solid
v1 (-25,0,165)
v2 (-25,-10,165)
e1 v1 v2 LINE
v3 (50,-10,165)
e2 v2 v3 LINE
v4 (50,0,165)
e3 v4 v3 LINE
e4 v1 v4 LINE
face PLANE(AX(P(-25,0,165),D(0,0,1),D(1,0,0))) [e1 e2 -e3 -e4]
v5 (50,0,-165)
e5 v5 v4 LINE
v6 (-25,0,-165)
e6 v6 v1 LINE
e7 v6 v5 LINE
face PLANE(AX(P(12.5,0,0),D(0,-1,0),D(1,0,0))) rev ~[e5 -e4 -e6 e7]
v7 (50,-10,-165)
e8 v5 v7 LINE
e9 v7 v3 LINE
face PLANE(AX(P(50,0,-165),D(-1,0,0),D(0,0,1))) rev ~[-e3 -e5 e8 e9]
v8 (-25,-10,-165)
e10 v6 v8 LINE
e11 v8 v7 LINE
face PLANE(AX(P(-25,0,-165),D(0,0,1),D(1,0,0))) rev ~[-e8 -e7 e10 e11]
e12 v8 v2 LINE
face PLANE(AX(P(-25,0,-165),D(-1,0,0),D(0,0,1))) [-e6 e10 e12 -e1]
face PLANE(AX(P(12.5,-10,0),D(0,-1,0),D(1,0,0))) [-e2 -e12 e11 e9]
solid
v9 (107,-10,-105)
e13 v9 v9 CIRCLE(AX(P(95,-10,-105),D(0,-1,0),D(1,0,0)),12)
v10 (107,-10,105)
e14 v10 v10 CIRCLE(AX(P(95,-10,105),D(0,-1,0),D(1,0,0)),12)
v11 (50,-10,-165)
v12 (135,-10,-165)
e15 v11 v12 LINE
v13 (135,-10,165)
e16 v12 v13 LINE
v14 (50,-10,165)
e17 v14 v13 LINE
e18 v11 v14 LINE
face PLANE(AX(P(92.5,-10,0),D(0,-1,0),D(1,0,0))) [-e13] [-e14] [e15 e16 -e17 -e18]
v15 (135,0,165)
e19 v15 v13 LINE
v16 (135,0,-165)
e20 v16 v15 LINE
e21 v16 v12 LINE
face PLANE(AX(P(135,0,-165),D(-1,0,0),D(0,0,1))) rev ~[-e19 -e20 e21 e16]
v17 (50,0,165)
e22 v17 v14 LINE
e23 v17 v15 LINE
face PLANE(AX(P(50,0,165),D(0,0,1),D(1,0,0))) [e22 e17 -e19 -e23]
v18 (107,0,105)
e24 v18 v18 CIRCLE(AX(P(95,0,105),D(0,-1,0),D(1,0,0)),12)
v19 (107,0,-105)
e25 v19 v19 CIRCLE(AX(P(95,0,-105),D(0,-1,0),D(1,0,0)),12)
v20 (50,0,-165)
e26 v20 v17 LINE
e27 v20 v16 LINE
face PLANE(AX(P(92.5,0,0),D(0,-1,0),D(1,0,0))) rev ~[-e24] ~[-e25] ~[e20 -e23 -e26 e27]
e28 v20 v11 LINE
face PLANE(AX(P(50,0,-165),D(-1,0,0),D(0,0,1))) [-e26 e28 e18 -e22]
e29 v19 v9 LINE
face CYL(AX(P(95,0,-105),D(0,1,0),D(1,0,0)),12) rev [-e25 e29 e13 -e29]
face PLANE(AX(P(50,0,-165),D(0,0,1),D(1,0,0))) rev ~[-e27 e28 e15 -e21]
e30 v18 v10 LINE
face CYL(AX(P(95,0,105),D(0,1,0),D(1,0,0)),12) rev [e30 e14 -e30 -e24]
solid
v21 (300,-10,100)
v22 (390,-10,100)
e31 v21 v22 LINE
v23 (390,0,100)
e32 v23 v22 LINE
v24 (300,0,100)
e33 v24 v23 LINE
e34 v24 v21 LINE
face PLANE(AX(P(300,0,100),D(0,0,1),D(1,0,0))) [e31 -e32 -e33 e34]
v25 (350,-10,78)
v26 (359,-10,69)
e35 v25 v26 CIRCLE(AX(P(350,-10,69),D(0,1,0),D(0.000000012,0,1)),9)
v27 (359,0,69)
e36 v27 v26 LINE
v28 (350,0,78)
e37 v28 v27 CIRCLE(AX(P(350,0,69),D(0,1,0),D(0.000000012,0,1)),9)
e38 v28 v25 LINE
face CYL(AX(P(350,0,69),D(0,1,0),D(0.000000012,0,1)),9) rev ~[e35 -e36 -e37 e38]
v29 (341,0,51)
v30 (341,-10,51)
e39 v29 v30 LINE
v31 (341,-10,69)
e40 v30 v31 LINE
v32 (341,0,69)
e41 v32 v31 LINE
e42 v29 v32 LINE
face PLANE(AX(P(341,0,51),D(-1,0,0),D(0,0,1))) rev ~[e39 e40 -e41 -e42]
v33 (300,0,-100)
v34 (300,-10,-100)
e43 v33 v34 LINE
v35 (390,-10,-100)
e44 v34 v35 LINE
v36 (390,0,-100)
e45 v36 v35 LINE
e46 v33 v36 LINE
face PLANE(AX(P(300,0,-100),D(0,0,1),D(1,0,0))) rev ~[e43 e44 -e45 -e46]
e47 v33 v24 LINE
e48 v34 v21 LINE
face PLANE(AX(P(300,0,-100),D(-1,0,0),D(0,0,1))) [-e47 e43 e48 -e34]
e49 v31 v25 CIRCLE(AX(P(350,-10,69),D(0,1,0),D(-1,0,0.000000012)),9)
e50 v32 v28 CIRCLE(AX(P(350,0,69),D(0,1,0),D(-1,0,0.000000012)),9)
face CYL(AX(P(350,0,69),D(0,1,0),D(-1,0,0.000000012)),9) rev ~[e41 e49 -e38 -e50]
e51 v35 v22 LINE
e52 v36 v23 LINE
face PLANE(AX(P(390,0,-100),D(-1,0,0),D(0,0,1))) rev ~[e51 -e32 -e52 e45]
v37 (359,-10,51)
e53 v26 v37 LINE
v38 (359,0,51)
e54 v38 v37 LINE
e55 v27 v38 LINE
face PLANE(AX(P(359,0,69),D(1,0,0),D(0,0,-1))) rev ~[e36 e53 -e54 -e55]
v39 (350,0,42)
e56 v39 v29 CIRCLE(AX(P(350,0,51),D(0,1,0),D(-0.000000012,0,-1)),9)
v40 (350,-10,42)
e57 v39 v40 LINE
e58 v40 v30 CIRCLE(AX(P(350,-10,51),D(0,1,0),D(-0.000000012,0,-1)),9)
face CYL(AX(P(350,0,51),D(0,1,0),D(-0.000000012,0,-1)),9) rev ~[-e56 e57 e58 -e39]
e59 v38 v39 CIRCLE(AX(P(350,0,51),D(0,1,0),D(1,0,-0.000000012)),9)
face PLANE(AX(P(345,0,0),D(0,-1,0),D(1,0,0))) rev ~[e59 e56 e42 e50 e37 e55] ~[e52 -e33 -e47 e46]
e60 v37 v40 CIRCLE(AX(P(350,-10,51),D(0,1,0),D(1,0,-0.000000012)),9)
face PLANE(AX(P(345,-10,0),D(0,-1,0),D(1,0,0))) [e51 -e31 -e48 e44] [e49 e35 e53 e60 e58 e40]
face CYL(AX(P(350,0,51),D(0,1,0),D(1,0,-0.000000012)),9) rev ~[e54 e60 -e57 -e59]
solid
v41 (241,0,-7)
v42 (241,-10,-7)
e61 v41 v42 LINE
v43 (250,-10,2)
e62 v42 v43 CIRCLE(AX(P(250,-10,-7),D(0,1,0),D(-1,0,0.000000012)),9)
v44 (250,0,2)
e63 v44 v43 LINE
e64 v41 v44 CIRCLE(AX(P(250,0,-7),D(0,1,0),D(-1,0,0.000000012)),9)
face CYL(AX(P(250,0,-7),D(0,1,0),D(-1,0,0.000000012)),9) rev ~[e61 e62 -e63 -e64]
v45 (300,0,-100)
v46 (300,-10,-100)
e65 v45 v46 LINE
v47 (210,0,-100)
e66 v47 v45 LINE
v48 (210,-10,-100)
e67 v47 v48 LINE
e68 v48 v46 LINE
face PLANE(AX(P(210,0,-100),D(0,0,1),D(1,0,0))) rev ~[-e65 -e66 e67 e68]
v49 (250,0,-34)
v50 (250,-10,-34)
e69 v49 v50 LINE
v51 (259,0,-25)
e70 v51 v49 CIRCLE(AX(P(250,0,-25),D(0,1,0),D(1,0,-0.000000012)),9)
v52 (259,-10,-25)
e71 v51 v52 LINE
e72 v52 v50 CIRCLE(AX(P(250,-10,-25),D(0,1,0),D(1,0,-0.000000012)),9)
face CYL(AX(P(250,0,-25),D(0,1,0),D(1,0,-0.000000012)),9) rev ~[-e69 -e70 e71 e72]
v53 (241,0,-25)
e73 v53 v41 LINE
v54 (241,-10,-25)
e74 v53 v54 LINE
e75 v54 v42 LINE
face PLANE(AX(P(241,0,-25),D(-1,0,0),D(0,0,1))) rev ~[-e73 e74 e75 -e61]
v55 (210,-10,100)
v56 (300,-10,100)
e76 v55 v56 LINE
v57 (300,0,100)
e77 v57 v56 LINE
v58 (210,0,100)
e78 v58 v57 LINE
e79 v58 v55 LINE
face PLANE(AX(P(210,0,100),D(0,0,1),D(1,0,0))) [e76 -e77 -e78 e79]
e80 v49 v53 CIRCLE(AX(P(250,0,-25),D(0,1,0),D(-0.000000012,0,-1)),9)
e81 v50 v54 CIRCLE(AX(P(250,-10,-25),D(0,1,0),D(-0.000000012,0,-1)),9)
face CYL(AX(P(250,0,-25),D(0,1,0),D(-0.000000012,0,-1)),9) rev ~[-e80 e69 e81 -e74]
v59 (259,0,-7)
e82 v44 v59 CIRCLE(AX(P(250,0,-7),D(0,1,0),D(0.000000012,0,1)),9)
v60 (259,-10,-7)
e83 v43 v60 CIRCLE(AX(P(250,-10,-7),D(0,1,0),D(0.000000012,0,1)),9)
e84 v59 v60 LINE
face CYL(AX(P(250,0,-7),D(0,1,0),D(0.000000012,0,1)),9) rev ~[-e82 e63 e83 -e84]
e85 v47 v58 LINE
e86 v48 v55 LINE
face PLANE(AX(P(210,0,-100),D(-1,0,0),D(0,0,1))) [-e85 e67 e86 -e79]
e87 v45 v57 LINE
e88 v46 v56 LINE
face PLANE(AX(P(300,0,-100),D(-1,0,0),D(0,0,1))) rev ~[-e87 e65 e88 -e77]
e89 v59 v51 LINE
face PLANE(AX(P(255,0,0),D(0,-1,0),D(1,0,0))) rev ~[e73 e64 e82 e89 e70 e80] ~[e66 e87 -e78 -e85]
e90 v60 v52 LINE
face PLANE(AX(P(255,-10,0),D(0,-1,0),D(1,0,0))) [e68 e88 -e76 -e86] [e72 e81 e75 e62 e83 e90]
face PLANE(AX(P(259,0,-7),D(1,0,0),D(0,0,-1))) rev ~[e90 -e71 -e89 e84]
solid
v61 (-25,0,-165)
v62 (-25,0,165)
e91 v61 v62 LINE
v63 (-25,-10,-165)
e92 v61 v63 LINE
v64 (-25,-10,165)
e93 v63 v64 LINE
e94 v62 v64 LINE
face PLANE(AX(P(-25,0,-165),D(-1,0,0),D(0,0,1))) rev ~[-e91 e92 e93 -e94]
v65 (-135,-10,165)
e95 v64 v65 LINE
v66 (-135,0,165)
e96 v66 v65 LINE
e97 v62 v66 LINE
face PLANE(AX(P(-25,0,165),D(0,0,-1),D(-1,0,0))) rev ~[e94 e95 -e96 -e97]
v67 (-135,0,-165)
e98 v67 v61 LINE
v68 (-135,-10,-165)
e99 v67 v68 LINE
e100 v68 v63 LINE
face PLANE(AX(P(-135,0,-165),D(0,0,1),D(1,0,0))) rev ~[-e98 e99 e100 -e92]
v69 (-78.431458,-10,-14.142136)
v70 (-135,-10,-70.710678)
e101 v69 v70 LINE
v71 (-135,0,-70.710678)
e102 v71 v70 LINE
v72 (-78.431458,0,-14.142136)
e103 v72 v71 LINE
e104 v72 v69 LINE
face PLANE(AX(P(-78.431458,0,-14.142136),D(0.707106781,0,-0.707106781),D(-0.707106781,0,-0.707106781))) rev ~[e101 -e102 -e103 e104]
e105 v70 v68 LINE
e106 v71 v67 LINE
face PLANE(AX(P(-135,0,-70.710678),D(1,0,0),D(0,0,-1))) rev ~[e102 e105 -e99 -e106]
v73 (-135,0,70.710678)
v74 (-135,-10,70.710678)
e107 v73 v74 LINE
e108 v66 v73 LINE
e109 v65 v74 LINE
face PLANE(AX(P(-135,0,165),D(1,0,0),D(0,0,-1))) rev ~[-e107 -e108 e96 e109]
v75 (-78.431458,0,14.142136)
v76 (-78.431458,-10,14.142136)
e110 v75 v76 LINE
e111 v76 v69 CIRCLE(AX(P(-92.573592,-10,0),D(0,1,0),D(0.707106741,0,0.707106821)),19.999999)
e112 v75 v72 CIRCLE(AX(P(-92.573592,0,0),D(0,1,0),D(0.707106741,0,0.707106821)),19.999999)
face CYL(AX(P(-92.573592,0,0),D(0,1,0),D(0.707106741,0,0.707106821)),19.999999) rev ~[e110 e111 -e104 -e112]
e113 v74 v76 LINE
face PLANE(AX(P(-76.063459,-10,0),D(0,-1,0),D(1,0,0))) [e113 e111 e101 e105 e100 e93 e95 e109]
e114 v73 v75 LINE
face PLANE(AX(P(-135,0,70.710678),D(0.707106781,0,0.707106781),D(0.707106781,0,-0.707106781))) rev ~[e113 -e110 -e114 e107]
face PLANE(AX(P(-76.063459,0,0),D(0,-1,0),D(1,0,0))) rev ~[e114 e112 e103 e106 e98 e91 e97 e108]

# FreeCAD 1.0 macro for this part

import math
import FreeCAD as App
import Part
import Sketcher

doc = App.newDocument("Part")
body = doc.addObject("PartDesign::Body", "Body")
body.AllowCompound = True

# Sketch on XZ plane
sketch1 = body.newObject("Sketcher::SketchObject", "Sketch")
sketch1.AttachmentSupport = (doc.getObject("XZ_Plane"), [""])
sketch1.MapMode = "FlatFace"
sketch1.addGeometry([
    Part.LineSegment(App.Vector(-25, -165, 0), App.Vector(-25, 165, 0)),  # 0
    Part.LineSegment(App.Vector(-25, 165, 0), App.Vector(-135, 165, 0)),  # 1
    Part.LineSegment(App.Vector(-135, 165, 0), App.Vector(-135, 71, 0)),  # 2
    Part.LineSegment(App.Vector(-135, 71, 0), App.Vector(-78, 14, 0)),  # 3
    Part.ArcOfCircle(Part.Circle(App.Vector(-93, 0, 0), App.Vector(0, 0, 1), 20), math.radians(-45), math.radians(45)),  # 4
    Part.LineSegment(App.Vector(-78, -14, 0), App.Vector(-135, -71, 0)),  # 5
    Part.LineSegment(App.Vector(-135, -71, 0), App.Vector(-135, -165, 0)),  # 6
    Part.LineSegment(App.Vector(-135, -165, 0), App.Vector(-25, -165, 0)),  # 7
    Part.LineSegment(App.Vector(210, 100, 0), App.Vector(210, -100, 0)),  # 8
    Part.LineSegment(App.Vector(210, -100, 0), App.Vector(300, -100, 0)),  # 9
    Part.LineSegment(App.Vector(300, -100, 0), App.Vector(300, 100, 0)),  # 10
    Part.LineSegment(App.Vector(300, 100, 0), App.Vector(210, 100, 0)),  # 11
    Part.ArcOfCircle(Part.Circle(App.Vector(250, -7, 0), App.Vector(0, 0, 1), 9), math.radians(0), math.radians(90)),  # 12
    Part.LineSegment(App.Vector(259, -7, 0), App.Vector(259, -25, 0)),  # 13
    Part.ArcOfCircle(Part.Circle(App.Vector(250, -25, 0), App.Vector(0, 0, 1), 9), math.radians(-90), math.radians(0)),  # 14
    Part.ArcOfCircle(Part.Circle(App.Vector(250, -25, 0), App.Vector(0, 0, 1), 9), math.radians(-180), math.radians(-90)),  # 15
    Part.LineSegment(App.Vector(241, -25, 0), App.Vector(241, -7, 0)),  # 16
    Part.ArcOfCircle(Part.Circle(App.Vector(250, -7, 0), App.Vector(0, 0, 1), 9), math.radians(90), math.radians(180)),  # 17
], False)
sketch1.addConstraint([
    Sketcher.Constraint("Coincident", 0, 2, 1, 1),
    Sketcher.Constraint("Coincident", 1, 2, 2, 1),
    Sketcher.Constraint("Coincident", 2, 2, 3, 1),
    Sketcher.Constraint("Tangent", 3, 2, 4, 2),
    Sketcher.Constraint("Tangent", 4, 1, 5, 1),
    Sketcher.Constraint("Coincident", 5, 2, 6, 1),
    Sketcher.Constraint("Coincident", 6, 2, 7, 1),
    Sketcher.Constraint("Coincident", 7, 2, 0, 1),
    Sketcher.Constraint("Coincident", 8, 2, 9, 1),
    Sketcher.Constraint("Coincident", 9, 2, 10, 1),
    Sketcher.Constraint("Coincident", 10, 2, 11, 1),
    Sketcher.Constraint("Coincident", 11, 2, 8, 1),
    Sketcher.Constraint("Tangent", 12, 1, 13, 1),
    Sketcher.Constraint("Tangent", 13, 2, 14, 2),
    Sketcher.Constraint("Tangent", 14, 1, 15, 2),
    Sketcher.Constraint("Tangent", 15, 1, 16, 1),
    Sketcher.Constraint("Tangent", 16, 2, 17, 2),
    Sketcher.Constraint("Tangent", 17, 1, 12, 2),
    Sketcher.Constraint("Vertical", 0),
    Sketcher.Constraint("Horizontal", 1),
    Sketcher.Constraint("Vertical", 2),
    Sketcher.Constraint("Vertical", 6),
    Sketcher.Constraint("Horizontal", 7),
    Sketcher.Constraint("Vertical", 8),
    Sketcher.Constraint("Horizontal", 9),
    Sketcher.Constraint("Vertical", 10),
    Sketcher.Constraint("Horizontal", 11),
    Sketcher.Constraint("Vertical", 13),
    Sketcher.Constraint("Vertical", 16),
    Sketcher.Constraint("Equal", 12, 14),
    Sketcher.Constraint("Equal", 14, 15),
    Sketcher.Constraint("Symmetric", 3, 2, 4, 1, -1),
    Sketcher.Constraint("Symmetric", 1, 2, 6, 2, -1),
    Sketcher.Constraint("Perpendicular", 3, 5),
    Sketcher.Constraint("Vertical", 17, 3, 14, 1),
    Sketcher.Constraint("Vertical", 14, 1, 17, 1),
    Sketcher.Constraint("Radius", 4, 19.999999),
    Sketcher.Constraint("Radius", 12, 9.0),
    Sketcher.Constraint("DistanceX", 1, 2, 1, 1, 110.0),
    Sketcher.Constraint("DistanceX", 9, 1, 9, 2, 90.0),
    Sketcher.Constraint("DistanceY", 0, 1, 0, 2, 330.0),
    Sketcher.Constraint("DistanceY", 8, 2, 8, 1, 200.0),
    Sketcher.Constraint("DistanceY", 13, 2, 13, 1, 18.0),
    Sketcher.Constraint("Distance", 3, 79.999999),
    Sketcher.Constraint("DistanceX", -1, 1, 12, 3, 250.0),
    Sketcher.Constraint("DistanceY", 12, 3, -1, 1, 7.0),
    Sketcher.Constraint("DistanceX", 0, 2, -1, 1, 25.0),
    Sketcher.Constraint("DistanceX", -1, 1, 8, 2, 210.0),
    Sketcher.Constraint("DistanceY", 8, 2, -1, 1, 100.0),
])
pad1 = body.newObject("PartDesign::Pad", "Pad")
pad1.Profile = sketch1
pad1.Length = 10
body2 = doc.addObject("PartDesign::Body", "Body001")
body2.AllowCompound = True

# Sketch on XZ plane
sketch2 = body2.newObject("Sketcher::SketchObject", "Sketch001")
sketch2.AttachmentSupport = (doc.getObject("XZ_Plane001"), [""])
sketch2.MapMode = "FlatFace"
sketch2.addGeometry([
    Part.LineSegment(App.Vector(50, 165, 0), App.Vector(50, -165, 0)),  # 0
    Part.LineSegment(App.Vector(50, -165, 0), App.Vector(135, -165, 0)),  # 1
    Part.LineSegment(App.Vector(135, -165, 0), App.Vector(135, 165, 0)),  # 2
    Part.LineSegment(App.Vector(135, 165, 0), App.Vector(50, 165, 0)),  # 3
    Part.Circle(App.Vector(95, -105, 0), App.Vector(0, 0, 1), 12),  # 4
    Part.Circle(App.Vector(95, 105, 0), App.Vector(0, 0, 1), 12),  # 5
    Part.LineSegment(App.Vector(300, 100, 0), App.Vector(300, -100, 0)),  # 6
    Part.LineSegment(App.Vector(300, -100, 0), App.Vector(390, -100, 0)),  # 7
    Part.LineSegment(App.Vector(390, -100, 0), App.Vector(390, 100, 0)),  # 8
    Part.LineSegment(App.Vector(390, 100, 0), App.Vector(300, 100, 0)),  # 9
    Part.LineSegment(App.Vector(359, 69, 0), App.Vector(359, 51, 0)),  # 10
    Part.ArcOfCircle(Part.Circle(App.Vector(350, 51, 0), App.Vector(0, 0, 1), 9), math.radians(-90), math.radians(0)),  # 11
    Part.ArcOfCircle(Part.Circle(App.Vector(350, 51, 0), App.Vector(0, 0, 1), 9), math.radians(-180), math.radians(-90)),  # 12
    Part.LineSegment(App.Vector(341, 51, 0), App.Vector(341, 69, 0)),  # 13
    Part.ArcOfCircle(Part.Circle(App.Vector(350, 69, 0), App.Vector(0, 0, 1), 9), math.radians(90), math.radians(180)),  # 14
    Part.ArcOfCircle(Part.Circle(App.Vector(350, 69, 0), App.Vector(0, 0, 1), 9), math.radians(0), math.radians(90)),  # 15
], False)
sketch2.addConstraint([
    Sketcher.Constraint("Coincident", 0, 2, 1, 1),
    Sketcher.Constraint("Coincident", 1, 2, 2, 1),
    Sketcher.Constraint("Coincident", 2, 2, 3, 1),
    Sketcher.Constraint("Coincident", 3, 2, 0, 1),
    Sketcher.Constraint("Coincident", 6, 2, 7, 1),
    Sketcher.Constraint("Coincident", 7, 2, 8, 1),
    Sketcher.Constraint("Coincident", 8, 2, 9, 1),
    Sketcher.Constraint("Coincident", 9, 2, 6, 1),
    Sketcher.Constraint("Tangent", 10, 2, 11, 2),
    Sketcher.Constraint("Tangent", 11, 1, 12, 2),
    Sketcher.Constraint("Tangent", 12, 1, 13, 1),
    Sketcher.Constraint("Tangent", 13, 2, 14, 2),
    Sketcher.Constraint("Tangent", 14, 1, 15, 2),
    Sketcher.Constraint("Tangent", 15, 1, 10, 1),
    Sketcher.Constraint("Vertical", 0),
    Sketcher.Constraint("Horizontal", 1),
    Sketcher.Constraint("Vertical", 2),
    Sketcher.Constraint("Horizontal", 3),
    Sketcher.Constraint("Vertical", 6),
    Sketcher.Constraint("Horizontal", 7),
    Sketcher.Constraint("Vertical", 8),
    Sketcher.Constraint("Horizontal", 9),
    Sketcher.Constraint("Vertical", 10),
    Sketcher.Constraint("Vertical", 13),
    Sketcher.Constraint("Equal", 4, 5),
    Sketcher.Constraint("Equal", 11, 12),
    Sketcher.Constraint("Equal", 12, 14),
    Sketcher.Constraint("Symmetric", 4, 3, 5, 3, -1),
    Sketcher.Constraint("Vertical", 15, 3, 11, 1),
    Sketcher.Constraint("Vertical", 11, 1, 14, 1),
    Sketcher.Constraint("Diameter", 4, 24.0),
    Sketcher.Constraint("Radius", 11, 9.0),
    Sketcher.Constraint("DistanceX", 1, 1, 1, 2, 85.0),
    Sketcher.Constraint("DistanceX", 7, 1, 7, 2, 90.0),
    Sketcher.Constraint("DistanceY", 0, 2, 0, 1, 330.0),
    Sketcher.Constraint("DistanceY", 6, 2, 6, 1, 200.0),
    Sketcher.Constraint("DistanceY", 10, 2, 10, 1, 18.0),
    Sketcher.Constraint("DistanceX", -1, 1, 4, 3, 95.0),
    Sketcher.Constraint("DistanceY", 4, 3, -1, 1, 105.0),
    Sketcher.Constraint("DistanceX", -1, 1, 11, 3, 350.0),
    Sketcher.Constraint("DistanceY", -1, 1, 11, 3, 51.0),
    Sketcher.Constraint("DistanceX", -1, 1, 0, 2, 50.0),
    Sketcher.Constraint("DistanceY", 0, 2, -1, 1, 165.0),
    Sketcher.Constraint("DistanceX", -1, 1, 6, 2, 300.0),
    Sketcher.Constraint("DistanceY", 6, 2, -1, 1, 100.0),
])
pad2 = body2.newObject("PartDesign::Pad", "Pad001")
pad2.Profile = sketch2
pad2.Length = 10
body3 = doc.addObject("PartDesign::Body", "Body002")

# Sketch on XZ plane
sketch3 = body3.newObject("Sketcher::SketchObject", "Sketch002")
sketch3.AttachmentSupport = (doc.getObject("XZ_Plane002"), [""])
sketch3.MapMode = "FlatFace"
sketch3.addGeometry([
    Part.LineSegment(App.Vector(-25, 165, 0), App.Vector(-25, -165, 0)),
    Part.LineSegment(App.Vector(-25, -165, 0), App.Vector(50, -165, 0)),
    Part.LineSegment(App.Vector(50, -165, 0), App.Vector(50, 165, 0)),
    Part.LineSegment(App.Vector(50, 165, 0), App.Vector(-25, 165, 0)),
], False)
sketch3.addConstraint([
    Sketcher.Constraint("Coincident", 0, 2, 1, 1),
    Sketcher.Constraint("Coincident", 1, 2, 2, 1),
    Sketcher.Constraint("Coincident", 2, 2, 3, 1),
    Sketcher.Constraint("Coincident", 3, 2, 0, 1),
    Sketcher.Constraint("Vertical", 0),
    Sketcher.Constraint("Horizontal", 1),
    Sketcher.Constraint("Vertical", 2),
    Sketcher.Constraint("Horizontal", 3),
    Sketcher.Constraint("DistanceX", 1, 1, 1, 2, 75.0),
    Sketcher.Constraint("DistanceY", 0, 2, 0, 1, 330.0),
    Sketcher.Constraint("DistanceX", 0, 2, -1, 1, 25.0),
    Sketcher.Constraint("DistanceY", 0, 2, -1, 1, 165.0),
])
pad3 = body3.newObject("PartDesign::Pad", "Pad002")
pad3.Profile = sketch3
pad3.Length = 10

doc.recompute()
